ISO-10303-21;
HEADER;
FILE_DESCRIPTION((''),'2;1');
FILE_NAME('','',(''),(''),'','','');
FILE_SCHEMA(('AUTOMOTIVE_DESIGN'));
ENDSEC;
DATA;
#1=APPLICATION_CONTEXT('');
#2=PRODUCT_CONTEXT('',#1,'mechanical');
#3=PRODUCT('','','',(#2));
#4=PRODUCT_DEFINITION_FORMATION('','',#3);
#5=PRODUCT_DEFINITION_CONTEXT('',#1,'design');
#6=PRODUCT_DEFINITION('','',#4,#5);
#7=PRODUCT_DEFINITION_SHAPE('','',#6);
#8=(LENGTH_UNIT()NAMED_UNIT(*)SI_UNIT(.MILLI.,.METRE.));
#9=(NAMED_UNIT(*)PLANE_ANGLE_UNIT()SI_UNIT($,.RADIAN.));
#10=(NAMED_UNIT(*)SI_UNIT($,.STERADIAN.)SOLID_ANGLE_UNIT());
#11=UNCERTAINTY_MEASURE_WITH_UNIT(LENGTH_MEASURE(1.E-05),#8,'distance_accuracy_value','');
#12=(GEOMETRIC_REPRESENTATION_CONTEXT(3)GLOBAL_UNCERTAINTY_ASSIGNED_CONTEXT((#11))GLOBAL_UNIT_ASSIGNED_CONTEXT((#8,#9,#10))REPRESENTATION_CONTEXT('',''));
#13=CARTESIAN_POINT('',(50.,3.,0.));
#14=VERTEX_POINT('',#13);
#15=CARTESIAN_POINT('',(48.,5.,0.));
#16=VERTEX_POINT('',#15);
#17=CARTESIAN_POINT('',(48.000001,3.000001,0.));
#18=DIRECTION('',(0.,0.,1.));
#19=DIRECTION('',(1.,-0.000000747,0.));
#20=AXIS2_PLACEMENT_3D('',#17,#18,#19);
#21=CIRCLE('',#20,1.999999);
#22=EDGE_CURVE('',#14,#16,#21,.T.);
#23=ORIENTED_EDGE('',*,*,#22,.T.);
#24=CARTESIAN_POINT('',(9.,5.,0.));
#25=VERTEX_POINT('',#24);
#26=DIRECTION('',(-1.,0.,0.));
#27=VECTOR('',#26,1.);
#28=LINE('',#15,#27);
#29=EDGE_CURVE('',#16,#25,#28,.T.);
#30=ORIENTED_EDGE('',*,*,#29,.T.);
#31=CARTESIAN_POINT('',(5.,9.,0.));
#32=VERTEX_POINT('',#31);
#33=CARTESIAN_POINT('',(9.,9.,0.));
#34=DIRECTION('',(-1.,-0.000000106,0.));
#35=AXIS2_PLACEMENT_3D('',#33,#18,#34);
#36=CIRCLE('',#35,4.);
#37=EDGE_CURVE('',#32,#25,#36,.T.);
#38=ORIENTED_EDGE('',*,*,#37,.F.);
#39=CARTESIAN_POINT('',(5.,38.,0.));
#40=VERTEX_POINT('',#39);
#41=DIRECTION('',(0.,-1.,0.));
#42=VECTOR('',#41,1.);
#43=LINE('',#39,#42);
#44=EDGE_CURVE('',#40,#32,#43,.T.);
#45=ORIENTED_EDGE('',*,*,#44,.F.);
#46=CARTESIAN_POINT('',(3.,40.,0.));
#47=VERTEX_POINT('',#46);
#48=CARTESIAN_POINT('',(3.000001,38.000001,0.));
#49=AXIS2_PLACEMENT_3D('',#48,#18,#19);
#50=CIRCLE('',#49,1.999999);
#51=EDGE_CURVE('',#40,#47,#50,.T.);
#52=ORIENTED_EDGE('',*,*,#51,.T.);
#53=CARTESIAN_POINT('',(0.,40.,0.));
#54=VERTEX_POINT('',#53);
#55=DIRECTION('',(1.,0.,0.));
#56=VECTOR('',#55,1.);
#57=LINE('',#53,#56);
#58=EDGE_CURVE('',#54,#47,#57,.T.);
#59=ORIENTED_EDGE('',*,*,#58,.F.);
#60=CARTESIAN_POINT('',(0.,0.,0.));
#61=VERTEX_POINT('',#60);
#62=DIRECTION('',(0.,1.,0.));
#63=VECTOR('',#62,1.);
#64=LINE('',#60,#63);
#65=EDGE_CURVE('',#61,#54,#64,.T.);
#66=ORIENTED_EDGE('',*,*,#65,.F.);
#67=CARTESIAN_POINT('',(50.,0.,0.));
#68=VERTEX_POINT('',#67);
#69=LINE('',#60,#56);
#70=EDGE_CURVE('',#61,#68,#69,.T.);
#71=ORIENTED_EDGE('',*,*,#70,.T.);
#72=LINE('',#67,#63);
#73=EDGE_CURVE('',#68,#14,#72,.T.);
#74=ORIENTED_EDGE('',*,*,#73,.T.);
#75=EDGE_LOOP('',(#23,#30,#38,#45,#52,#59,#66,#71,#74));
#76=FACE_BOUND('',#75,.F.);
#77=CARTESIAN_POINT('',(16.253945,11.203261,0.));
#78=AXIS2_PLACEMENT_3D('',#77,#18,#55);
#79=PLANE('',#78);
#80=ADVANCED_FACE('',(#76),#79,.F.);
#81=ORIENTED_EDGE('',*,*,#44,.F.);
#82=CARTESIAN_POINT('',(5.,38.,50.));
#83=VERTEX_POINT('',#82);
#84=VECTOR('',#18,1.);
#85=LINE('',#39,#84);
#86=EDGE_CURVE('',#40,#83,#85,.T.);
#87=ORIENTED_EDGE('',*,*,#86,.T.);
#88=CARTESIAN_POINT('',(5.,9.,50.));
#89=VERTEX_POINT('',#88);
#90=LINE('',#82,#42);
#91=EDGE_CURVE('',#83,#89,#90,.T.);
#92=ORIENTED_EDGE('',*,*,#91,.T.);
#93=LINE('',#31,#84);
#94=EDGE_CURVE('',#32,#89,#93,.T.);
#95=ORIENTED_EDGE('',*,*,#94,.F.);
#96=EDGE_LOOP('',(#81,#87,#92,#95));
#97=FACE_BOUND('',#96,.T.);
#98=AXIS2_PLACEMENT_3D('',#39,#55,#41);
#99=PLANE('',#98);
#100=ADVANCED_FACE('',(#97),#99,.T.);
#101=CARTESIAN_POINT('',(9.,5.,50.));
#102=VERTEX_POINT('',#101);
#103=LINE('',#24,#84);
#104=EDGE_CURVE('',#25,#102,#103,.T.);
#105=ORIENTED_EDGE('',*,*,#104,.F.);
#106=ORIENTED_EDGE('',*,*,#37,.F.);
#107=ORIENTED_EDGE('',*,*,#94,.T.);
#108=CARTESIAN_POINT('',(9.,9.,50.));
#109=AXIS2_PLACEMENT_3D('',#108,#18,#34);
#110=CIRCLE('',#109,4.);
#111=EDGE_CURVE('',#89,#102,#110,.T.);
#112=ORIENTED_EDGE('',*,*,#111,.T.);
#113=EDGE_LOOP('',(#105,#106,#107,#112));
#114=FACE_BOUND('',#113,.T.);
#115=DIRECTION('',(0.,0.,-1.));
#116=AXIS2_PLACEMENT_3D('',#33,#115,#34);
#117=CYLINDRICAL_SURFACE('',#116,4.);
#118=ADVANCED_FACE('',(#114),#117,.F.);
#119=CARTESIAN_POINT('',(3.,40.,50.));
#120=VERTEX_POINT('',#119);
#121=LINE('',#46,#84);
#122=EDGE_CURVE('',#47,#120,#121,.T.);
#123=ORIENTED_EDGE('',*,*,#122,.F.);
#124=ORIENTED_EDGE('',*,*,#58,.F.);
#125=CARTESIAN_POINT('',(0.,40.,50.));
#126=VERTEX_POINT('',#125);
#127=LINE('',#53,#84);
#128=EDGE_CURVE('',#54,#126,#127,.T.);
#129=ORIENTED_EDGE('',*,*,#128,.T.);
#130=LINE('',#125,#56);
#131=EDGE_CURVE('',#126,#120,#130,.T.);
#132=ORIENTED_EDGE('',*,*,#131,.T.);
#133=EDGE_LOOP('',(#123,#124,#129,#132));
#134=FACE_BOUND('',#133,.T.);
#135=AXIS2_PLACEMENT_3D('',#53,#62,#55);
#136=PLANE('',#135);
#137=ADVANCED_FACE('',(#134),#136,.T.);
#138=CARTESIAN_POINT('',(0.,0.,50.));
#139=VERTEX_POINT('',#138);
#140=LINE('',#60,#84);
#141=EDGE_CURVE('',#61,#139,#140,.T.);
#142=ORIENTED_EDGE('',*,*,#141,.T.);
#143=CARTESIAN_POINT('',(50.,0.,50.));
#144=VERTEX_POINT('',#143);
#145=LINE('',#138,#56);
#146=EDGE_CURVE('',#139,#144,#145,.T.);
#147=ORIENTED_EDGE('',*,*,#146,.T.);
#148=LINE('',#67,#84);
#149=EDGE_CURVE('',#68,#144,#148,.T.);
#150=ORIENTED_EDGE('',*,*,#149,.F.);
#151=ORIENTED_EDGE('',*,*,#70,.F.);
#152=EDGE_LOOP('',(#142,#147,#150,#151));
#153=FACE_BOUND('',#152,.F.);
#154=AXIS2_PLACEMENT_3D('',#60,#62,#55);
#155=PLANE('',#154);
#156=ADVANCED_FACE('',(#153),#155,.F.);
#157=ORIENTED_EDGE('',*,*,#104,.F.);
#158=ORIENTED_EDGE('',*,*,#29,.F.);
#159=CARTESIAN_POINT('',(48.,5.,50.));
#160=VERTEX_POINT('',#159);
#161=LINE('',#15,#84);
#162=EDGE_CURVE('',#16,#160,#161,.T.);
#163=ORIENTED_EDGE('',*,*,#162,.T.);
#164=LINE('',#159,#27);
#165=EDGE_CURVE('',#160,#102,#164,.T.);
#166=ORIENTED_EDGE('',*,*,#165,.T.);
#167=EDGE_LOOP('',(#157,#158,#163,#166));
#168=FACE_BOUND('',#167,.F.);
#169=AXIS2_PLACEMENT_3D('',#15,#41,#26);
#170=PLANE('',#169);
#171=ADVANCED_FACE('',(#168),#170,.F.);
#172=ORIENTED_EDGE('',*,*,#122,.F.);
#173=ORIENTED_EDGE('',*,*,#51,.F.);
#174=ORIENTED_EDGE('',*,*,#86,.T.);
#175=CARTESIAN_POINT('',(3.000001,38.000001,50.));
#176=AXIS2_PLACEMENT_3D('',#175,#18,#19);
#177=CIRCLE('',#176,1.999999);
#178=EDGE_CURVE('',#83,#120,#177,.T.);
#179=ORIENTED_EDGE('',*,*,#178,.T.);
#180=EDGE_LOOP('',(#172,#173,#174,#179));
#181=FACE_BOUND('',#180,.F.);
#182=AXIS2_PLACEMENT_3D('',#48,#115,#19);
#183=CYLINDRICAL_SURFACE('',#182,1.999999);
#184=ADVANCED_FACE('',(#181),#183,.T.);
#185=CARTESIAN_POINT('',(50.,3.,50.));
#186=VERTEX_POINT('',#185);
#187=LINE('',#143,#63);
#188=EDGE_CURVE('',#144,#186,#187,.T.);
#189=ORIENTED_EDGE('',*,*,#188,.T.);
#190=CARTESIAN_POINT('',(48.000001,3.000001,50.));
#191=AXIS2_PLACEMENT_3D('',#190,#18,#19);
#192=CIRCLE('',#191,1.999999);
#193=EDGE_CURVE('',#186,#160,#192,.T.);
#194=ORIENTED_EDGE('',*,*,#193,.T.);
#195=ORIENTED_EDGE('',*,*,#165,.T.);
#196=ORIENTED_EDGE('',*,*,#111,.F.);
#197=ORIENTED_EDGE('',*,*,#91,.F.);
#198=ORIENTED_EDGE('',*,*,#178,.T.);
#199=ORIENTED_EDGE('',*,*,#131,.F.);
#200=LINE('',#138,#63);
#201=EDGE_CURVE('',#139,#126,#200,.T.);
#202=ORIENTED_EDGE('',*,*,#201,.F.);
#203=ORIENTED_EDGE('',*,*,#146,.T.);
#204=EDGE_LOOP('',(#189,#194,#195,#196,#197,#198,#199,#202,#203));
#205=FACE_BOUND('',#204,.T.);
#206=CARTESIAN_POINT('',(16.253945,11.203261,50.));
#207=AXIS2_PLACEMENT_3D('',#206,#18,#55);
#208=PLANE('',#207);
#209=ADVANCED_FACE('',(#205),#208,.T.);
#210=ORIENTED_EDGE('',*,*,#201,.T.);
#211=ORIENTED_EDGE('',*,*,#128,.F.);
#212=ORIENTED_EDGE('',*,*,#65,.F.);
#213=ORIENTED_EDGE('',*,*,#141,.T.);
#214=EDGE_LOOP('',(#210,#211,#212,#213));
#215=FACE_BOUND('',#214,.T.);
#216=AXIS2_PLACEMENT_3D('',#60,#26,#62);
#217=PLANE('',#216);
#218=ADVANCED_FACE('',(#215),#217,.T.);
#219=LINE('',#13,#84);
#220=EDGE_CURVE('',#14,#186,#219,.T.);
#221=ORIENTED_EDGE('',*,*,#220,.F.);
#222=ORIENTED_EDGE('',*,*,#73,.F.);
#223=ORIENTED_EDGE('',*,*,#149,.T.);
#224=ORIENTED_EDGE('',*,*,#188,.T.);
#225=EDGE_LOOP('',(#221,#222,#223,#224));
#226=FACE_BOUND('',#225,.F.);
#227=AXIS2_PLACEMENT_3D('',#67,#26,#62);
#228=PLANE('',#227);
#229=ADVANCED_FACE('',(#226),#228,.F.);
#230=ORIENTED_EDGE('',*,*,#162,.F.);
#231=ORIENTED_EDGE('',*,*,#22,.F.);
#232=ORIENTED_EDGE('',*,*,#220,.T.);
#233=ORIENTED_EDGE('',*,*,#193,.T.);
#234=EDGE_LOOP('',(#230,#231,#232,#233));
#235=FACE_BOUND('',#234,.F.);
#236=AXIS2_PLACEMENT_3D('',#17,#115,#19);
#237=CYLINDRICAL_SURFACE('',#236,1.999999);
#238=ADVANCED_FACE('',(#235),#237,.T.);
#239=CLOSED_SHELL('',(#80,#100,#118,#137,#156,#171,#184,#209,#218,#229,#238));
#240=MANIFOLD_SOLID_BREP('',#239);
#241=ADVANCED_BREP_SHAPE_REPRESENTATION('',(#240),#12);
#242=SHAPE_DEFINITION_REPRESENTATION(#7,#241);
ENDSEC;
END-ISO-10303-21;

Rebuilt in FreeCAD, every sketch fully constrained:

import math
import FreeCAD as App
import Part
import Sketcher

doc = App.newDocument("Part")
body = doc.addObject("PartDesign::Body", "Body")

# Sketch on XY plane
sketch1 = body.newObject("Sketcher::SketchObject", "Sketch")
sketch1.AttachmentSupport = (doc.getObject("XY_Plane"), [""])
sketch1.MapMode = "FlatFace"
sketch1.addGeometry([
    Part.LineSegment(App.Vector(0, 0, 0), App.Vector(50, 0, 0)),  # 0
    Part.LineSegment(App.Vector(50, 0, 0), App.Vector(50, 3, 0)),  # 1
    Part.ArcOfCircle(Part.Circle(App.Vector(48, 3, 0), App.Vector(0, 0, 1), 2), math.radians(0), math.radians(90)),  # 2
    Part.LineSegment(App.Vector(48, 5, 0), App.Vector(9, 5, 0)),  # 3
    Part.ArcOfCircle(Part.Circle(App.Vector(9, 9, 0), App.Vector(0, 0, 1), 4), math.radians(-180), math.radians(-90)),  # 4
    Part.LineSegment(App.Vector(5, 9, 0), App.Vector(5, 38, 0)),  # 5
    Part.ArcOfCircle(Part.Circle(App.Vector(3, 38, 0), App.Vector(0, 0, 1), 2), math.radians(0), math.radians(90)),  # 6
    Part.LineSegment(App.Vector(3, 40, 0), App.Vector(0, 40, 0)),  # 7
    Part.LineSegment(App.Vector(0, 40, 0), App.Vector(0, 0, 0)),  # 8
], False)
sketch1.addConstraint([
    Sketcher.Constraint("Coincident", 0, 2, 1, 1),
    Sketcher.Constraint("Tangent", 1, 2, 2, 1),
    Sketcher.Constraint("Tangent", 2, 2, 3, 1),
    Sketcher.Constraint("Tangent", 3, 2, 4, 2),
    Sketcher.Constraint("Tangent", 4, 1, 5, 1),
    Sketcher.Constraint("Tangent", 5, 2, 6, 1),
    Sketcher.Constraint("Tangent", 6, 2, 7, 1),
    Sketcher.Constraint("Coincident", 7, 2, 8, 1),
    Sketcher.Constraint("Coincident", 8, 2, 0, 1),
    Sketcher.Constraint("Horizontal", 0),
    Sketcher.Constraint("Vertical", 1),
    Sketcher.Constraint("Horizontal", 3),
    Sketcher.Constraint("Vertical", 5),
    Sketcher.Constraint("Horizontal", 7),
    Sketcher.Constraint("Vertical", 8),
    Sketcher.Constraint("Coincident", 8, 2, -1, 1),
    Sketcher.Constraint("Equal", 2, 6),
    Sketcher.Constraint("Equal", 7, 1),
    Sketcher.Constraint("Radius", 2, 1.999999),
    Sketcher.Constraint("Radius", 4, 4.0),
    Sketcher.Constraint("DistanceX", 0, 1, 0, 2, 50.0),
    Sketcher.Constraint("DistanceX", 3, 2, 3, 1, 39.0),
    Sketcher.Constraint("DistanceY", 5, 1, 5, 2, 29.0),
])
pad1 = body.newObject("PartDesign::Pad", "Pad")
pad1.Profile = sketch1
pad1.Length = 50

doc.recompute()
